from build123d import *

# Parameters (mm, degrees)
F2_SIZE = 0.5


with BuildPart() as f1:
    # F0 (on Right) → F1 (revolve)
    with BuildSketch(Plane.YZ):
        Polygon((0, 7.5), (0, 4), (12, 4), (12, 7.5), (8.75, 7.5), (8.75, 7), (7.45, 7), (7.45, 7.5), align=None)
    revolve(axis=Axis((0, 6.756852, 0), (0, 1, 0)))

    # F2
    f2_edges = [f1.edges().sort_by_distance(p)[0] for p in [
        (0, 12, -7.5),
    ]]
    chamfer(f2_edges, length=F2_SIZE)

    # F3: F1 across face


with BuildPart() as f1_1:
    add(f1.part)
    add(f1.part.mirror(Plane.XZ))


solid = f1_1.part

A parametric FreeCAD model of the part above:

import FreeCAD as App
import Part
import Sketcher

V = App.Vector
Q = App.Units.Quantity


def edges_at(feature, points):
    """Names of the edges that pass closest to the given points."""
    edges = feature.Shape.Edges
    near = lambda p: min(range(len(edges)), key=lambda i: edges[i].distToShape(Part.Vertex(*p))[0])
    return sorted({f"Edge{near(p) + 1}" for p in points})

doc = App.newDocument("Part")
body = doc.addObject("PartDesign::Body", "Body")

sketch1 = body.newObject("Sketcher::SketchObject", "Sketch")
sketch1.AttachmentSupport = (doc.getObject("YZ_Plane"), [""])
sketch1.MapMode = "FlatFace"
sketch1.addGeometry(Part.LineSegment(V(0, 7.5, 0), V(0, 4, 0)), False)
sketch1.addGeometry(Part.LineSegment(V(0, 4, 0), V(12, 4, 0)), False)
sketch1.addGeometry(Part.LineSegment(V(12, 4, 0), V(12, 7.5, 0)), False)
sketch1.addGeometry(Part.LineSegment(V(12, 7.5, 0), V(8.8, 7.5, 0)), False)
sketch1.addGeometry(Part.LineSegment(V(8.8, 7.5, 0), V(8.8, 7, 0)), False)
sketch1.addGeometry(Part.LineSegment(V(8.8, 7, 0), V(7.5, 7, 0)), False)
sketch1.addGeometry(Part.LineSegment(V(7.5, 7, 0), V(7.5, 7.5, 0)), False)
sketch1.addGeometry(Part.LineSegment(V(7.5, 7.5, 0), V(0, 7.5, 0)), False)
sketch1.addConstraint(Sketcher.Constraint("Coincident", 0, 2, 1, 1))
sketch1.addConstraint(Sketcher.Constraint("Coincident", 1, 2, 2, 1))
sketch1.addConstraint(Sketcher.Constraint("Coincident", 2, 2, 3, 1))
sketch1.addConstraint(Sketcher.Constraint("Coincident", 3, 2, 4, 1))
sketch1.addConstraint(Sketcher.Constraint("Coincident", 4, 2, 5, 1))
sketch1.addConstraint(Sketcher.Constraint("Coincident", 5, 2, 6, 1))
sketch1.addConstraint(Sketcher.Constraint("Coincident", 6, 2, 7, 1))
sketch1.addConstraint(Sketcher.Constraint("Coincident", 7, 2, 0, 1))
sketch1.addConstraint(Sketcher.Constraint("Vertical", 0))
sketch1.addConstraint(Sketcher.Constraint("Horizontal", 1))
sketch1.addConstraint(Sketcher.Constraint("Vertical", 2))
sketch1.addConstraint(Sketcher.Constraint("Horizontal", 3))
sketch1.addConstraint(Sketcher.Constraint("Vertical", 4))
sketch1.addConstraint(Sketcher.Constraint("Horizontal", 5))
sketch1.addConstraint(Sketcher.Constraint("Vertical", 6))
sketch1.addConstraint(Sketcher.Constraint("Horizontal", 7))
sketch1.addConstraint(Sketcher.Constraint("PointOnObject", 0, 2, -2))
sketch1.addConstraint(Sketcher.Constraint("Horizontal", 3, 2, 6, 2))
sketch1.addConstraint(Sketcher.Constraint("DistanceX", 1, 1, 1, 2, Q("12 mm")))
sketch1.addConstraint(Sketcher.Constraint("DistanceX", 5, 2, 5, 1, Q("1.3 mm")))
sketch1.addConstraint(Sketcher.Constraint("DistanceY", 0, 2, 0, 1, Q("3.5 mm")))
sketch1.addConstraint(Sketcher.Constraint("DistanceY", 4, 2, 4, 1, Q("0.5 mm")))
sketch1.addConstraint(Sketcher.Constraint("DistanceY", -1, 1, 0, 2, Q("4 mm")))
sketch1.addConstraint(Sketcher.Constraint("DistanceX", 3, 2, 3, 1, Q("3.25 mm")))
revolution = body.newObject("PartDesign::Revolution", "Revolution")
revolution.Profile = sketch1
revolution.ReferenceAxis = (sketch1, ["H_Axis"])
revolution.Angle = 360
doc.recompute()

chamfer = body.newObject("PartDesign::Chamfer", "Chamfer")
chamfer.Base = (revolution, edges_at(revolution, [(0, 12, -7.5)]))
chamfer.Size = 0.5
body2 = doc.addObject("PartDesign::Body", "Body001")
doc.recompute()

body2.BaseFeature = body
doc.recompute()

mirroring = doc.addObject("Part::Mirroring", "Mirroring")
mirroring.Source = body
mirroring.Base = V(0, 0, 0)
mirroring.Normal = V(0, -1, 0)
body3 = doc.addObject("PartDesign::Body", "Body002")
body3.BaseFeature = mirroring
boolean = body2.newObject("PartDesign::Boolean", "Boolean")
boolean.Type = "Fuse"
boolean.addObjects([body3])
doc.recompute()
mirroring.Visibility = False

doc.recompute()
